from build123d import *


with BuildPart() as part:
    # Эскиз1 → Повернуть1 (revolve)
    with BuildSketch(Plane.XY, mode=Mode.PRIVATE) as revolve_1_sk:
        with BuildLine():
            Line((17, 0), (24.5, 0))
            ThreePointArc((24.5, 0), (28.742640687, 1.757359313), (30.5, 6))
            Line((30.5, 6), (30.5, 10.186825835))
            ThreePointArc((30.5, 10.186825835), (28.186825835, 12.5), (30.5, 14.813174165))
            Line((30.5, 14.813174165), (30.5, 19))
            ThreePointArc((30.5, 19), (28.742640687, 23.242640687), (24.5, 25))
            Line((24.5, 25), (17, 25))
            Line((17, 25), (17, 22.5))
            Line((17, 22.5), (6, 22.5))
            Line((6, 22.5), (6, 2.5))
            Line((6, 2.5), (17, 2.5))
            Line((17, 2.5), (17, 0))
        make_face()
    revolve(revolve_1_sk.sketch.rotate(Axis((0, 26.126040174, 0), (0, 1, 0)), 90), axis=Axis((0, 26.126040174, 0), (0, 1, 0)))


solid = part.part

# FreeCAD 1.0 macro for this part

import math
import FreeCAD as App
import Part
import Sketcher
Q = App.Units.Quantity

doc = App.newDocument("Part")
params = doc.addObject("Spreadsheet::Sheet", "Params")
for row, (alias, value) in enumerate([
    ("sketch1_radius", "6 mm"),
    ("sketch1_width", "11 mm"),
    ("sketch1_height", "20 mm"),
    ("sketch1_width2", "7.5 mm"),
    ("sketch1_height2", "2.5 mm"),
    ("revolution_angle", "360 deg"),
], start=1):
    params.set(f"A{row}", alias)
    params.set(f"B{row}", "=" + value)
    params.setAlias(f"B{row}", alias)

body = doc.addObject("PartDesign::Body", "Body")

# Sketch on XY plane
sketch1 = body.newObject("Sketcher::SketchObject", "Sketch")
sketch1.AttachmentSupport = (doc.getObject("XY_Plane"), [""])
sketch1.MapMode = "FlatFace"
sketch1.addGeometry(Part.LineSegment(App.Vector(17, 0, 0), App.Vector(24.5, 0, 0)), False)
sketch1.addGeometry(Part.ArcOfCircle(Part.Circle(App.Vector(24.5, 6, 0), App.Vector(0, 0, 1), 6), math.radians(-90), math.radians(0)), False)
sketch1.addGeometry(Part.LineSegment(App.Vector(30.5, 6, 0), App.Vector(30.5, 10.2, 0)), False)
sketch1.addGeometry(Part.ArcOfCircle(Part.Circle(App.Vector(30.5, 12.5, 0), App.Vector(0, 0, 1), 2.3), math.radians(90), math.radians(270)), False)
sketch1.addGeometry(Part.LineSegment(App.Vector(30.5, 14.8, 0), App.Vector(30.5, 19, 0)), False)
sketch1.addGeometry(Part.ArcOfCircle(Part.Circle(App.Vector(24.5, 19, 0), App.Vector(0, 0, 1), 6), math.radians(0), math.radians(90)), False)
sketch1.addGeometry(Part.LineSegment(App.Vector(24.5, 25, 0), App.Vector(17, 25, 0)), False)
sketch1.addGeometry(Part.LineSegment(App.Vector(17, 25, 0), App.Vector(17, 22.5, 0)), False)
sketch1.addGeometry(Part.LineSegment(App.Vector(17, 22.5, 0), App.Vector(6, 22.5, 0)), False)
sketch1.addGeometry(Part.LineSegment(App.Vector(6, 22.5, 0), App.Vector(6, 2.5, 0)), False)
sketch1.addGeometry(Part.LineSegment(App.Vector(6, 2.5, 0), App.Vector(17, 2.5, 0)), False)
sketch1.addGeometry(Part.LineSegment(App.Vector(17, 2.5, 0), App.Vector(17, 0, 0)), False)
sketch1.addConstraint(Sketcher.Constraint("Tangent", 0, 2, 1, 1))
sketch1.addConstraint(Sketcher.Constraint("Tangent", 1, 2, 2, 1))
sketch1.addConstraint(Sketcher.Constraint("Coincident", 2, 2, 3, 2))
sketch1.addConstraint(Sketcher.Constraint("Coincident", 3, 1, 4, 1))
sketch1.addConstraint(Sketcher.Constraint("Tangent", 4, 2, 5, 1))
sketch1.addConstraint(Sketcher.Constraint("Tangent", 5, 2, 6, 1))
sketch1.addConstraint(Sketcher.Constraint("Coincident", 6, 2, 7, 1))
sketch1.addConstraint(Sketcher.Constraint("Coincident", 7, 2, 8, 1))
sketch1.addConstraint(Sketcher.Constraint("Coincident", 8, 2, 9, 1))
sketch1.addConstraint(Sketcher.Constraint("Coincident", 9, 2, 10, 1))
sketch1.addConstraint(Sketcher.Constraint("Coincident", 10, 2, 11, 1))
sketch1.addConstraint(Sketcher.Constraint("Coincident", 11, 2, 0, 1))
sketch1.addConstraint(Sketcher.Constraint("Horizontal", 0))
sketch1.addConstraint(Sketcher.Constraint("Vertical", 2))
sketch1.addConstraint(Sketcher.Constraint("Vertical", 4))
sketch1.addConstraint(Sketcher.Constraint("Horizontal", 6))
sketch1.addConstraint(Sketcher.Constraint("Vertical", 7))
sketch1.addConstraint(Sketcher.Constraint("Horizontal", 8))
sketch1.addConstraint(Sketcher.Constraint("Vertical", 9))
sketch1.addConstraint(Sketcher.Constraint("Horizontal", 10))
sketch1.addConstraint(Sketcher.Constraint("Vertical", 11))
sketch1.addConstraint(Sketcher.Constraint("Equal", 1, 5))
sketch1.addConstraint(Sketcher.Constraint("PointOnObject", 0, 2, -1))
sketch1.addConstraint(Sketcher.Constraint("Vertical", 1, 3, 5, 3))
sketch1.addConstraint(Sketcher.Constraint("Vertical", 3, 3, 1, 2))
sketch1.addConstraint(Sketcher.Constraint("Vertical", 7, 2, 10, 2))
sketch1.addConstraint(Sketcher.Constraint("Equal", 2, 4))
sketch1.addConstraint(Sketcher.Constraint("Equal", 7, 11))
sketch1.addConstraint(Sketcher.Constraint("Radius", 1, Q("6 mm")))
sketch1.addConstraint(Sketcher.Constraint("DistanceX", 8, 2, 8, 1, Q("11 mm")))
sketch1.addConstraint(Sketcher.Constraint("DistanceY", 9, 2, 9, 1, Q("20 mm")))
sketch1.addConstraint(Sketcher.Constraint("DistanceX", 0, 1, 0, 2, Q("7.5 mm")))
sketch1.addConstraint(Sketcher.Constraint("DistanceY", 7, 2, 7, 1, Q("2.5 mm")))
sketch1.addConstraint(Sketcher.Constraint("DistanceX", -1, 1, 6, 2, Q("17 mm")))
sketch1.addConstraint(Sketcher.Constraint("Radius", 3, Q("2.313174 mm")))
sketch1.setExpression("Constraints[28]", "Params.sketch1_radius")
sketch1.setExpression("Constraints[29]", "Params.sketch1_width")
sketch1.setExpression("Constraints[30]", "Params.sketch1_height")
sketch1.setExpression("Constraints[31]", "Params.sketch1_width2")
sketch1.setExpression("Constraints[32]", "Params.sketch1_height2")
revolution = body.newObject("PartDesign::Revolution", "Revolution")
revolution.Profile = sketch1
revolution.ReferenceAxis = (sketch1, ["V_Axis"])
revolution.setExpression("Angle", "Params.revolution_angle")

doc.recompute()
